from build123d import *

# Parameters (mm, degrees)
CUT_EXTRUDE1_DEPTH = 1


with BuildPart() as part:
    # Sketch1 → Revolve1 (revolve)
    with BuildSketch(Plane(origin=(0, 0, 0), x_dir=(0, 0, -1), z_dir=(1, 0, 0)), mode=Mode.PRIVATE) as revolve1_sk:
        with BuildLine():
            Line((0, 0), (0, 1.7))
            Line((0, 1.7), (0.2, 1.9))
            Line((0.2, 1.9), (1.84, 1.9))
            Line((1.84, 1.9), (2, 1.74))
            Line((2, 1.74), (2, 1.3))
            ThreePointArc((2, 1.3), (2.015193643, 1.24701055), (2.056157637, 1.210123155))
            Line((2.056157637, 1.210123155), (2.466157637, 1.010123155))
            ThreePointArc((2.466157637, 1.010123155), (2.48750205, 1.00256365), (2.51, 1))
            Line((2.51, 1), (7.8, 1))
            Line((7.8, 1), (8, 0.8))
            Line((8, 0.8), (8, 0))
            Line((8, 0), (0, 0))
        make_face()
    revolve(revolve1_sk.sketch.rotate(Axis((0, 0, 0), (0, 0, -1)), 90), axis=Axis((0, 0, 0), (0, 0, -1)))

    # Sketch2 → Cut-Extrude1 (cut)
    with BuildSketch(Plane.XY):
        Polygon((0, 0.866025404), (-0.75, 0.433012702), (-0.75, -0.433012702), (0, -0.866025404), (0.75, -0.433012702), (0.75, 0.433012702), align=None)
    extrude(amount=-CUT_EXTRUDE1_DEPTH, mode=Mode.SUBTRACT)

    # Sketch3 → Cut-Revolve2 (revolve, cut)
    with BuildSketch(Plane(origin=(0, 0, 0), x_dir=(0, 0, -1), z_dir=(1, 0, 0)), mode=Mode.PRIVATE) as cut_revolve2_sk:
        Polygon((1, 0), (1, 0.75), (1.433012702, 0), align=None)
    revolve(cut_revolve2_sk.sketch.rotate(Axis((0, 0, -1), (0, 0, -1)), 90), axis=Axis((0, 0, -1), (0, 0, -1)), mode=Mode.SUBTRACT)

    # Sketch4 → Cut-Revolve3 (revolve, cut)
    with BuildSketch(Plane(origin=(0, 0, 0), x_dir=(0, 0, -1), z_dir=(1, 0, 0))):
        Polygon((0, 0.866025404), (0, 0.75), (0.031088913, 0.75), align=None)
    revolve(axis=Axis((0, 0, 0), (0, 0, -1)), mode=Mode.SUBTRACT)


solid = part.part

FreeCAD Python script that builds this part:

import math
import FreeCAD as App
import Part
import Sketcher
Q = App.Units.Quantity

doc = App.newDocument("Part")
body = doc.addObject("PartDesign::Body", "Body")

# Sketch on YZ plane
sketch1 = doc.addObject("Sketcher::SketchObject", "Sketch")
body.addObject(sketch1)
sketch1.AttachmentSupport = (doc.YZ_Plane, [""])
sketch1.MapMode = "FlatFace"
sketch1.addGeometry(Part.LineSegment(App.Vector(1.7, 0, 0), App.Vector(0, 0, 0)), False)
sketch1.addGeometry(Part.LineSegment(App.Vector(0, 0, 0), App.Vector(0, -8, 0)), False)
sketch1.addGeometry(Part.LineSegment(App.Vector(0, -8, 0), App.Vector(0.8, -8, 0)), False)
sketch1.addGeometry(Part.LineSegment(App.Vector(0.8, -8, 0), App.Vector(1, -7.8, 0)), False)
sketch1.addGeometry(Part.LineSegment(App.Vector(1, -7.8, 0), App.Vector(1, -2.51, 0)), False)
sketch1.addGeometry(Part.ArcOfCircle(Part.Circle(App.Vector(1.1, -2.51, 0), App.Vector(0, 0, 1), 0.1), math.radians(154), math.radians(180)), False)
sketch1.addGeometry(Part.LineSegment(App.Vector(1.01, -2.466, 0), App.Vector(1.21, -2.056, 0)), False)
sketch1.addGeometry(Part.ArcOfCircle(Part.Circle(App.Vector(1.3, -2.1, 0), App.Vector(0, 0, 1), 0.1), math.radians(90), math.radians(154)), False)
sketch1.addGeometry(Part.LineSegment(App.Vector(1.3, -2, 0), App.Vector(1.74, -2, 0)), False)
sketch1.addGeometry(Part.LineSegment(App.Vector(1.74, -2, 0), App.Vector(1.9, -1.84, 0)), False)
sketch1.addGeometry(Part.LineSegment(App.Vector(1.9, -1.84, 0), App.Vector(1.9, -0.2, 0)), False)
sketch1.addGeometry(Part.LineSegment(App.Vector(1.9, -0.2, 0), App.Vector(1.7, 0, 0)), False)
sketch1.addConstraint(Sketcher.Constraint("Coincident", 0, 2, 1, 1))
sketch1.addConstraint(Sketcher.Constraint("Coincident", 1, 2, 2, 1))
sketch1.addConstraint(Sketcher.Constraint("Coincident", 2, 2, 3, 1))
sketch1.addConstraint(Sketcher.Constraint("Coincident", 3, 2, 4, 1))
sketch1.addConstraint(Sketcher.Constraint("Tangent", 4, 2, 5, 2))
sketch1.addConstraint(Sketcher.Constraint("Tangent", 5, 1, 6, 1))
sketch1.addConstraint(Sketcher.Constraint("Tangent", 6, 2, 7, 2))
sketch1.addConstraint(Sketcher.Constraint("Tangent", 7, 1, 8, 1))
sketch1.addConstraint(Sketcher.Constraint("Coincident", 8, 2, 9, 1))
sketch1.addConstraint(Sketcher.Constraint("Coincident", 9, 2, 10, 1))
sketch1.addConstraint(Sketcher.Constraint("Coincident", 10, 2, 11, 1))
sketch1.addConstraint(Sketcher.Constraint("Coincident", 11, 2, 0, 1))
sketch1.addConstraint(Sketcher.Constraint("Horizontal", 0))
sketch1.addConstraint(Sketcher.Constraint("Vertical", 1))
sketch1.addConstraint(Sketcher.Constraint("Horizontal", 2))
sketch1.addConstraint(Sketcher.Constraint("Vertical", 4))
sketch1.addConstraint(Sketcher.Constraint("Horizontal", 8))
sketch1.addConstraint(Sketcher.Constraint("Vertical", 10))
sketch1.addConstraint(Sketcher.Constraint("Coincident", 0, 2, -1, 1))
sketch1.addConstraint(Sketcher.Constraint("Equal", 5, 7))
sketch1.addConstraint(Sketcher.Constraint("Parallel", 3, 9))
sketch1.addConstraint(Sketcher.Constraint("Perpendicular", 9, 11))
sketch1.addConstraint(Sketcher.Constraint("Equal", 3, 11))
sketch1.addConstraint(Sketcher.Constraint("Radius", 5, 0.1))
sketch1.addConstraint(Sketcher.Constraint("DistanceY", 1, 2, 1, 1, 8.0))
sketch1.addConstraint(Sketcher.Constraint("Angle", 3, Q("45 deg")))
sketch1.addConstraint(Sketcher.Constraint("DistanceX", 0, 2, 0, 1, 1.7))
sketch1.addConstraint(Sketcher.Constraint("DistanceX", 2, 1, 2, 2, 0.8))
sketch1.addConstraint(Sketcher.Constraint("DistanceX", -1, 1, 3, 2, 1.0))
sketch1.addConstraint(Sketcher.Constraint("DistanceY", 7, 1, -1, 1, 2.0))
sketch1.addConstraint(Sketcher.Constraint("DistanceX", 8, 1, 8, 2, 0.44))
sketch1.addConstraint(Sketcher.Constraint("DistanceY", 4, 1, 4, 2, 5.29))
sketch1.addConstraint(Sketcher.Constraint("DistanceY", 10, 1, 10, 2, 1.64))
revolution = doc.addObject("PartDesign::Revolution", "Revolution")
body.addObject(revolution)
revolution.Profile = sketch1
revolution.ReferenceAxis = (sketch1, ["V_Axis"])
revolution.Angle = 360

# Sketch on XY plane
sketch2 = doc.addObject("Sketcher::SketchObject", "Sketch001")
body.addObject(sketch2)
sketch2.AttachmentSupport = (doc.XY_Plane, [""])
sketch2.MapMode = "FlatFace"
sketch2.addGeometry(Part.LineSegment(App.Vector(0, 0.9, 0), App.Vector(-0.8, 0.4, 0)), False)
sketch2.addGeometry(Part.LineSegment(App.Vector(-0.8, 0.4, 0), App.Vector(-0.8, -0.4, 0)), False)
sketch2.addGeometry(Part.LineSegment(App.Vector(-0.8, -0.4, 0), App.Vector(0, -0.9, 0)), False)
sketch2.addGeometry(Part.LineSegment(App.Vector(0, -0.9, 0), App.Vector(0.8, -0.4, 0)), False)
sketch2.addGeometry(Part.LineSegment(App.Vector(0.8, -0.4, 0), App.Vector(0.8, 0.4, 0)), False)
sketch2.addGeometry(Part.LineSegment(App.Vector(0.8, 0.4, 0), App.Vector(0, 0.9, 0)), False)
sketch2.addConstraint(Sketcher.Constraint("Coincident", 0, 2, 1, 1))
sketch2.addConstraint(Sketcher.Constraint("Coincident", 1, 2, 2, 1))
sketch2.addConstraint(Sketcher.Constraint("Coincident", 2, 2, 3, 1))
sketch2.addConstraint(Sketcher.Constraint("Coincident", 3, 2, 4, 1))
sketch2.addConstraint(Sketcher.Constraint("Coincident", 4, 2, 5, 1))
sketch2.addConstraint(Sketcher.Constraint("Coincident", 5, 2, 0, 1))
sketch2.addConstraint(Sketcher.Constraint("Vertical", 1))
sketch2.addConstraint(Sketcher.Constraint("Vertical", 4))
sketch2.addConstraint(Sketcher.Constraint("Symmetric", 0, 2, 3, 2, -1, 1))
sketch2.addConstraint(Sketcher.Constraint("Symmetric", 2, 2, 5, 2, -1, 1))
sketch2.addConstraint(Sketcher.Constraint("PointOnObject", 2, 2, -2))
sketch2.addConstraint(Sketcher.Constraint("Parallel", 2, 5))
sketch2.addConstraint(Sketcher.Constraint("Horizontal", 1, 2, 3, 2))
sketch2.addConstraint(Sketcher.Constraint("Angle", 0, Q("-150 deg")))
sketch2.addConstraint(Sketcher.Constraint("DistanceX", 1, 2, 3, 2, 1.5))
sketch2.addConstraint(Sketcher.Constraint("DistanceY", 1, 2, 1, 1, 0.866025))
pocket1 = doc.addObject("PartDesign::Pocket", "Pocket")
body.addObject(pocket1)
pocket1.Profile = sketch2
pocket1.Length = 1

# Sketch on YZ plane
sketch3 = doc.addObject("Sketcher::SketchObject", "Sketch002")
body.addObject(sketch3)
sketch3.AttachmentSupport = (doc.YZ_Plane, [""])
sketch3.MapMode = "FlatFace"
sketch3.addGeometry(Part.LineSegment(App.Vector(0.75, -1, 0), App.Vector(0, -1, 0)), False)
sketch3.addGeometry(Part.LineSegment(App.Vector(0, -1, 0), App.Vector(0, -1.43, 0)), False)
sketch3.addGeometry(Part.LineSegment(App.Vector(0, -1.43, 0), App.Vector(0.75, -1, 0)), False)
sketch3.addConstraint(Sketcher.Constraint("Coincident", 0, 2, 1, 1))
sketch3.addConstraint(Sketcher.Constraint("Coincident", 1, 2, 2, 1))
sketch3.addConstraint(Sketcher.Constraint("Coincident", 2, 2, 0, 1))
sketch3.addConstraint(Sketcher.Constraint("Horizontal", 0))
sketch3.addConstraint(Sketcher.Constraint("Vertical", 1))
sketch3.addConstraint(Sketcher.Constraint("PointOnObject", 0, 2, -2))
sketch3.addConstraint(Sketcher.Constraint("Angle", 2, Q("30 deg")))
sketch3.addConstraint(Sketcher.Constraint("DistanceY", 0, 2, -1, 1, 1.0))
sketch3.addConstraint(Sketcher.Constraint("DistanceX", 0, 2, 0, 1, 0.75))
groove = doc.addObject("PartDesign::Groove", "Groove")
body.addObject(groove)
groove.Profile = sketch3
groove.ReferenceAxis = (sketch3, ["V_Axis"])
groove.Angle = 360

# Sketch on YZ plane
sketch4 = doc.addObject("Sketcher::SketchObject", "Sketch003")
body.addObject(sketch4)
sketch4.AttachmentSupport = (doc.YZ_Plane, [""])
sketch4.MapMode = "FlatFace"
sketch4.addGeometry(Part.LineSegment(App.Vector(0.866, 0, 0), App.Vector(0.75, 0, 0)), False)
sketch4.addGeometry(Part.LineSegment(App.Vector(0.75, 0, 0), App.Vector(0.75, -0.031, 0)), False)
sketch4.addGeometry(Part.LineSegment(App.Vector(0.75, -0.031, 0), App.Vector(0.866, 0, 0)), False)
sketch4.addConstraint(Sketcher.Constraint("Coincident", 0, 2, 1, 1))
sketch4.addConstraint(Sketcher.Constraint("Coincident", 1, 2, 2, 1))
sketch4.addConstraint(Sketcher.Constraint("Coincident", 2, 2, 0, 1))
sketch4.addConstraint(Sketcher.Constraint("Horizontal", 0))
sketch4.addConstraint(Sketcher.Constraint("Vertical", 1))
sketch4.addConstraint(Sketcher.Constraint("PointOnObject", 0, 2, -1))
sketch4.addConstraint(Sketcher.Constraint("Angle", 2, Q("15 deg")))
sketch4.addConstraint(Sketcher.Constraint("DistanceX", -1, 1, 0, 2, 0.75))
sketch4.addConstraint(Sketcher.Constraint("DistanceY", 1, 2, 1, 1, 0.031089))
groove2 = doc.addObject("PartDesign::Groove", "Groove001")
body.addObject(groove2)
groove2.Profile = sketch4
groove2.ReferenceAxis = (sketch4, ["V_Axis"])
groove2.Angle = 360

doc.recompute()
